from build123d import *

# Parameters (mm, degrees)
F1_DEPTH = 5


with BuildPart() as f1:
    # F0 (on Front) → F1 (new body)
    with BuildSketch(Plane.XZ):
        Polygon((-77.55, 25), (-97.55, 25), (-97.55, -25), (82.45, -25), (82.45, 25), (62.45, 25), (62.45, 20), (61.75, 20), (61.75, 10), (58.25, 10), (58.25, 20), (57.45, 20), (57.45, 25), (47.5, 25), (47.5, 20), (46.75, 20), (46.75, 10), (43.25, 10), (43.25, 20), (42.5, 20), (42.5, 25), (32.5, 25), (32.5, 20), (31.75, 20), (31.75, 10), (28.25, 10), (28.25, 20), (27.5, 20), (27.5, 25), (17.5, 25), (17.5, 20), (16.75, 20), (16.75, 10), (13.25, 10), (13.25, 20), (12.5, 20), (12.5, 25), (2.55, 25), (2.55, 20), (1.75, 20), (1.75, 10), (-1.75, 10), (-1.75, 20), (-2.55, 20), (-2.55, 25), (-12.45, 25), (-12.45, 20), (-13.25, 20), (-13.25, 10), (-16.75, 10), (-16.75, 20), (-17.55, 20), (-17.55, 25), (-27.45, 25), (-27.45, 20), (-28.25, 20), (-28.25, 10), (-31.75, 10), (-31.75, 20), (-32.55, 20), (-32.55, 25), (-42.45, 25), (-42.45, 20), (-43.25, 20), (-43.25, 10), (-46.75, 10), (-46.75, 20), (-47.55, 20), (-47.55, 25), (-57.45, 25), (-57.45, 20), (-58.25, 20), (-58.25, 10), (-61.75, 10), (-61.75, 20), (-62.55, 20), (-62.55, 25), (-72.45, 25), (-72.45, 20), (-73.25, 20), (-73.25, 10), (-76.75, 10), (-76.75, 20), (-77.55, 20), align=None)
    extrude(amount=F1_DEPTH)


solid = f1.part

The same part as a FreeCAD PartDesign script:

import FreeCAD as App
import Part
import Sketcher

V = App.Vector

doc = App.newDocument("Part")
body = doc.addObject("PartDesign::Body", "Body")

sketch1 = body.newObject("Sketcher::SketchObject", "Sketch")
sketch1.AttachmentSupport = (doc.getObject("XZ_Plane"), [""])
sketch1.MapMode = "FlatFace"
sketch1.addGeometry([
    Part.LineSegment(V(-77.5, 25, 0), V(-97.5, 25, 0)),
    Part.LineSegment(V(-97.5, 25, 0), V(-97.5, -25, 0)),
    Part.LineSegment(V(-97.5, -25, 0), V(82.5, -25, 0)),
    Part.LineSegment(V(82.5, -25, 0), V(82.5, 25, 0)),
    Part.LineSegment(V(82.5, 25, 0), V(62.5, 25, 0)),
    Part.LineSegment(V(62.5, 25, 0), V(62.5, 20, 0)),
    Part.LineSegment(V(62.5, 20, 0), V(61.8, 20, 0)),
    Part.LineSegment(V(61.8, 20, 0), V(61.8, 10, 0)),
    Part.LineSegment(V(61.8, 10, 0), V(58.2, 10, 0)),
    Part.LineSegment(V(58.2, 10, 0), V(58.2, 20, 0)),
    Part.LineSegment(V(58.2, 20, 0), V(57.5, 20, 0)),
    Part.LineSegment(V(57.5, 20, 0), V(57.5, 25, 0)),
    Part.LineSegment(V(57.5, 25, 0), V(47.5, 25, 0)),
    Part.LineSegment(V(47.5, 25, 0), V(47.5, 20, 0)),
    Part.LineSegment(V(47.5, 20, 0), V(46.8, 20, 0)),
    Part.LineSegment(V(46.8, 20, 0), V(46.8, 10, 0)),
    Part.LineSegment(V(46.8, 10, 0), V(43.2, 10, 0)),
    Part.LineSegment(V(43.2, 10, 0), V(43.2, 20, 0)),
    Part.LineSegment(V(43.2, 20, 0), V(42.5, 20, 0)),
    Part.LineSegment(V(42.5, 20, 0), V(42.5, 25, 0)),
    Part.LineSegment(V(42.5, 25, 0), V(32.5, 25, 0)),
    Part.LineSegment(V(32.5, 25, 0), V(32.5, 20, 0)),
    Part.LineSegment(V(32.5, 20, 0), V(31.8, 20, 0)),
    Part.LineSegment(V(31.8, 20, 0), V(31.8, 10, 0)),
    Part.LineSegment(V(31.8, 10, 0), V(28.2, 10, 0)),
    Part.LineSegment(V(28.2, 10, 0), V(28.2, 20, 0)),
    Part.LineSegment(V(28.2, 20, 0), V(27.5, 20, 0)),
    Part.LineSegment(V(27.5, 20, 0), V(27.5, 25, 0)),
    Part.LineSegment(V(27.5, 25, 0), V(17.5, 25, 0)),
    Part.LineSegment(V(17.5, 25, 0), V(17.5, 20, 0)),
    Part.LineSegment(V(17.5, 20, 0), V(16.8, 20, 0)),
    Part.LineSegment(V(16.8, 20, 0), V(16.8, 10, 0)),
    Part.LineSegment(V(16.8, 10, 0), V(13.2, 10, 0)),
    Part.LineSegment(V(13.2, 10, 0), V(13.2, 20, 0)),
    Part.LineSegment(V(13.2, 20, 0), V(12.5, 20, 0)),
    Part.LineSegment(V(12.5, 20, 0), V(12.5, 25, 0)),
    Part.LineSegment(V(12.5, 25, 0), V(2.5, 25, 0)),
    Part.LineSegment(V(2.5, 25, 0), V(2.5, 20, 0)),
    Part.LineSegment(V(2.5, 20, 0), V(1.8, 20, 0)),
    Part.LineSegment(V(1.8, 20, 0), V(1.8, 10, 0)),
    Part.LineSegment(V(1.8, 10, 0), V(-1.8, 10, 0)),
    Part.LineSegment(V(-1.8, 10, 0), V(-1.8, 20, 0)),
    Part.LineSegment(V(-1.8, 20, 0), V(-2.5, 20, 0)),
    Part.LineSegment(V(-2.5, 20, 0), V(-2.5, 25, 0)),
    Part.LineSegment(V(-2.5, 25, 0), V(-12.4, 25, 0)),
    Part.LineSegment(V(-12.4, 25, 0), V(-12.4, 20, 0)),
    Part.LineSegment(V(-12.4, 20, 0), V(-13.2, 20, 0)),
    Part.LineSegment(V(-13.2, 20, 0), V(-13.2, 10, 0)),
    Part.LineSegment(V(-13.2, 10, 0), V(-16.8, 10, 0)),
    Part.LineSegment(V(-16.8, 10, 0), V(-16.8, 20, 0)),
    Part.LineSegment(V(-16.8, 20, 0), V(-17.6, 20, 0)),
    Part.LineSegment(V(-17.6, 20, 0), V(-17.6, 25, 0)),
    Part.LineSegment(V(-17.6, 25, 0), V(-27.4, 25, 0)),
    Part.LineSegment(V(-27.4, 25, 0), V(-27.4, 20, 0)),
    Part.LineSegment(V(-27.4, 20, 0), V(-28.2, 20, 0)),
    Part.LineSegment(V(-28.2, 20, 0), V(-28.2, 10, 0)),
    Part.LineSegment(V(-28.2, 10, 0), V(-31.8, 10, 0)),
    Part.LineSegment(V(-31.8, 10, 0), V(-31.8, 20, 0)),
    Part.LineSegment(V(-31.8, 20, 0), V(-32.5, 20, 0)),
    Part.LineSegment(V(-32.5, 20, 0), V(-32.5, 25, 0)),
    Part.LineSegment(V(-32.5, 25, 0), V(-42.5, 25, 0)),
    Part.LineSegment(V(-42.5, 25, 0), V(-42.5, 20, 0)),
    Part.LineSegment(V(-42.5, 20, 0), V(-43.2, 20, 0)),
    Part.LineSegment(V(-43.2, 20, 0), V(-43.2, 10, 0)),
    Part.LineSegment(V(-43.2, 10, 0), V(-46.8, 10, 0)),
    Part.LineSegment(V(-46.8, 10, 0), V(-46.8, 20, 0)),
    Part.LineSegment(V(-46.8, 20, 0), V(-47.5, 20, 0)),
    Part.LineSegment(V(-47.5, 20, 0), V(-47.5, 25, 0)),
    Part.LineSegment(V(-47.5, 25, 0), V(-57.5, 25, 0)),
    Part.LineSegment(V(-57.5, 25, 0), V(-57.5, 20, 0)),
    Part.LineSegment(V(-57.5, 20, 0), V(-58.2, 20, 0)),
    Part.LineSegment(V(-58.2, 20, 0), V(-58.2, 10, 0)),
    Part.LineSegment(V(-58.2, 10, 0), V(-61.8, 10, 0)),
    Part.LineSegment(V(-61.8, 10, 0), V(-61.8, 20, 0)),
    Part.LineSegment(V(-61.8, 20, 0), V(-62.5, 20, 0)),
    Part.LineSegment(V(-62.5, 20, 0), V(-62.5, 25, 0)),
    Part.LineSegment(V(-62.5, 25, 0), V(-72.5, 25, 0)),
    Part.LineSegment(V(-72.5, 25, 0), V(-72.5, 20, 0)),
    Part.LineSegment(V(-72.5, 20, 0), V(-73.2, 20, 0)),
    Part.LineSegment(V(-73.2, 20, 0), V(-73.2, 10, 0)),
    Part.LineSegment(V(-73.2, 10, 0), V(-76.8, 10, 0)),
    Part.LineSegment(V(-76.8, 10, 0), V(-76.8, 20, 0)),
    Part.LineSegment(V(-76.8, 20, 0), V(-77.5, 20, 0)),
    Part.LineSegment(V(-77.5, 20, 0), V(-77.5, 25, 0)),
], False)
sketch1.addConstraint([
    Sketcher.Constraint("Coincident", 0, 2, 1, 1),
    Sketcher.Constraint("Coincident", 1, 2, 2, 1),
    Sketcher.Constraint("Coincident", 2, 2, 3, 1),
    Sketcher.Constraint("Coincident", 3, 2, 4, 1),
    Sketcher.Constraint("Coincident", 4, 2, 5, 1),
    Sketcher.Constraint("Coincident", 5, 2, 6, 1),
    Sketcher.Constraint("Coincident", 6, 2, 7, 1),
    Sketcher.Constraint("Coincident", 7, 2, 8, 1),
    Sketcher.Constraint("Coincident", 8, 2, 9, 1),
    Sketcher.Constraint("Coincident", 9, 2, 10, 1),
    Sketcher.Constraint("Coincident", 10, 2, 11, 1),
    Sketcher.Constraint("Coincident", 11, 2, 12, 1),
    Sketcher.Constraint("Coincident", 12, 2, 13, 1),
    Sketcher.Constraint("Coincident", 13, 2, 14, 1),
    Sketcher.Constraint("Coincident", 14, 2, 15, 1),
    Sketcher.Constraint("Coincident", 15, 2, 16, 1),
    Sketcher.Constraint("Coincident", 16, 2, 17, 1),
    Sketcher.Constraint("Coincident", 17, 2, 18, 1),
    Sketcher.Constraint("Coincident", 18, 2, 19, 1),
    Sketcher.Constraint("Coincident", 19, 2, 20, 1),
    Sketcher.Constraint("Coincident", 20, 2, 21, 1),
    Sketcher.Constraint("Coincident", 21, 2, 22, 1),
    Sketcher.Constraint("Coincident", 22, 2, 23, 1),
    Sketcher.Constraint("Coincident", 23, 2, 24, 1),
    Sketcher.Constraint("Coincident", 24, 2, 25, 1),
    Sketcher.Constraint("Coincident", 25, 2, 26, 1),
    Sketcher.Constraint("Coincident", 26, 2, 27, 1),
    Sketcher.Constraint("Coincident", 27, 2, 28, 1),
    Sketcher.Constraint("Coincident", 28, 2, 29, 1),
    Sketcher.Constraint("Coincident", 29, 2, 30, 1),
    Sketcher.Constraint("Coincident", 30, 2, 31, 1),
    Sketcher.Constraint("Coincident", 31, 2, 32, 1),
    Sketcher.Constraint("Coincident", 32, 2, 33, 1),
    Sketcher.Constraint("Coincident", 33, 2, 34, 1),
    Sketcher.Constraint("Coincident", 34, 2, 35, 1),
    Sketcher.Constraint("Coincident", 35, 2, 36, 1),
    Sketcher.Constraint("Coincident", 36, 2, 37, 1),
    Sketcher.Constraint("Coincident", 37, 2, 38, 1),
    Sketcher.Constraint("Coincident", 38, 2, 39, 1),
    Sketcher.Constraint("Coincident", 39, 2, 40, 1),
    Sketcher.Constraint("Coincident", 40, 2, 41, 1),
    Sketcher.Constraint("Coincident", 41, 2, 42, 1),
    Sketcher.Constraint("Coincident", 42, 2, 43, 1),
    Sketcher.Constraint("Coincident", 43, 2, 44, 1),
    Sketcher.Constraint("Coincident", 44, 2, 45, 1),
    Sketcher.Constraint("Coincident", 45, 2, 46, 1),
    Sketcher.Constraint("Coincident", 46, 2, 47, 1),
    Sketcher.Constraint("Coincident", 47, 2, 48, 1),
    Sketcher.Constraint("Coincident", 48, 2, 49, 1),
    Sketcher.Constraint("Coincident", 49, 2, 50, 1),
    Sketcher.Constraint("Coincident", 50, 2, 51, 1),
    Sketcher.Constraint("Coincident", 51, 2, 52, 1),
    Sketcher.Constraint("Coincident", 52, 2, 53, 1),
    Sketcher.Constraint("Coincident", 53, 2, 54, 1),
    Sketcher.Constraint("Coincident", 54, 2, 55, 1),
    Sketcher.Constraint("Coincident", 55, 2, 56, 1),
    Sketcher.Constraint("Coincident", 56, 2, 57, 1),
    Sketcher.Constraint("Coincident", 57, 2, 58, 1),
    Sketcher.Constraint("Coincident", 58, 2, 59, 1),
    Sketcher.Constraint("Coincident", 59, 2, 60, 1),
    Sketcher.Constraint("Coincident", 60, 2, 61, 1),
    Sketcher.Constraint("Coincident", 61, 2, 62, 1),
    Sketcher.Constraint("Coincident", 62, 2, 63, 1),
    Sketcher.Constraint("Coincident", 63, 2, 64, 1),
    Sketcher.Constraint("Coincident", 64, 2, 65, 1),
    Sketcher.Constraint("Coincident", 65, 2, 66, 1),
    Sketcher.Constraint("Coincident", 66, 2, 67, 1),
    Sketcher.Constraint("Coincident", 67, 2, 68, 1),
    Sketcher.Constraint("Coincident", 68, 2, 69, 1),
    Sketcher.Constraint("Coincident", 69, 2, 70, 1),
    Sketcher.Constraint("Coincident", 70, 2, 71, 1),
    Sketcher.Constraint("Coincident", 71, 2, 72, 1),
    Sketcher.Constraint("Coincident", 72, 2, 73, 1),
    Sketcher.Constraint("Coincident", 73, 2, 74, 1),
    Sketcher.Constraint("Coincident", 74, 2, 75, 1),
    Sketcher.Constraint("Coincident", 75, 2, 76, 1),
    Sketcher.Constraint("Coincident", 76, 2, 77, 1),
    Sketcher.Constraint("Coincident", 77, 2, 78, 1),
    Sketcher.Constraint("Coincident", 78, 2, 79, 1),
    Sketcher.Constraint("Coincident", 79, 2, 80, 1),
    Sketcher.Constraint("Coincident", 80, 2, 81, 1),
    Sketcher.Constraint("Coincident", 81, 2, 82, 1),
    Sketcher.Constraint("Coincident", 82, 2, 83, 1),
    Sketcher.Constraint("Coincident", 83, 2, 0, 1),
    Sketcher.Constraint("Horizontal", 0),
    Sketcher.Constraint("Vertical", 1),
    Sketcher.Constraint("Horizontal", 2),
    Sketcher.Constraint("Vertical", 3),
    Sketcher.Constraint("Horizontal", 4),
    Sketcher.Constraint("Vertical", 5),
    Sketcher.Constraint("Horizontal", 6),
    Sketcher.Constraint("Vertical", 7),
    Sketcher.Constraint("Horizontal", 8),
    Sketcher.Constraint("Vertical", 9),
    Sketcher.Constraint("Horizontal", 10),
    Sketcher.Constraint("Vertical", 11),
    Sketcher.Constraint("Horizontal", 12),
    Sketcher.Constraint("Vertical", 13),
    Sketcher.Constraint("Horizontal", 14),
    Sketcher.Constraint("Vertical", 15),
    Sketcher.Constraint("Horizontal", 16),
    Sketcher.Constraint("Vertical", 17),
    Sketcher.Constraint("Horizontal", 18),
    Sketcher.Constraint("Vertical", 19),
    Sketcher.Constraint("Horizontal", 20),
    Sketcher.Constraint("Vertical", 21),
    Sketcher.Constraint("Horizontal", 22),
    Sketcher.Constraint("Vertical", 23),
    Sketcher.Constraint("Horizontal", 24),
    Sketcher.Constraint("Vertical", 25),
    Sketcher.Constraint("Horizontal", 26),
    Sketcher.Constraint("Vertical", 27),
    Sketcher.Constraint("Horizontal", 28),
    Sketcher.Constraint("Vertical", 29),
    Sketcher.Constraint("Horizontal", 30),
    Sketcher.Constraint("Vertical", 31),
    Sketcher.Constraint("Horizontal", 32),
    Sketcher.Constraint("Vertical", 33),
    Sketcher.Constraint("Horizontal", 34),
    Sketcher.Constraint("Vertical", 35),
    Sketcher.Constraint("Horizontal", 36),
    Sketcher.Constraint("Vertical", 37),
    Sketcher.Constraint("Horizontal", 38),
    Sketcher.Constraint("Vertical", 39),
    Sketcher.Constraint("Horizontal", 40),
    Sketcher.Constraint("Vertical", 41),
    Sketcher.Constraint("Horizontal", 42),
    Sketcher.Constraint("Vertical", 43),
    Sketcher.Constraint("Horizontal", 44),
    Sketcher.Constraint("Vertical", 45),
    Sketcher.Constraint("Horizontal", 46),
    Sketcher.Constraint("Vertical", 47),
    Sketcher.Constraint("Horizontal", 48),
    Sketcher.Constraint("Vertical", 49),
    Sketcher.Constraint("Horizontal", 50),
    Sketcher.Constraint("Vertical", 51),
    Sketcher.Constraint("Horizontal", 52),
    Sketcher.Constraint("Vertical", 53),
    Sketcher.Constraint("Horizontal", 54),
    Sketcher.Constraint("Vertical", 55),
    Sketcher.Constraint("Horizontal", 56),
    Sketcher.Constraint("Vertical", 57),
    Sketcher.Constraint("Horizontal", 58),
    Sketcher.Constraint("Vertical", 59),
    Sketcher.Constraint("Horizontal", 60),
    Sketcher.Constraint("Vertical", 61),
    Sketcher.Constraint("Horizontal", 62),
    Sketcher.Constraint("Vertical", 63),
    Sketcher.Constraint("Horizontal", 64),
    Sketcher.Constraint("Vertical", 65),
    Sketcher.Constraint("Horizontal", 66),
    Sketcher.Constraint("Vertical", 67),
    Sketcher.Constraint("Horizontal", 68),
    Sketcher.Constraint("Vertical", 69),
    Sketcher.Constraint("Horizontal", 70),
    Sketcher.Constraint("Vertical", 71),
    Sketcher.Constraint("Horizontal", 72),
    Sketcher.Constraint("Vertical", 73),
    Sketcher.Constraint("Horizontal", 74),
    Sketcher.Constraint("Vertical", 75),
    Sketcher.Constraint("Horizontal", 76),
    Sketcher.Constraint("Vertical", 77),
    Sketcher.Constraint("Horizontal", 78),
    Sketcher.Constraint("Vertical", 79),
    Sketcher.Constraint("Horizontal", 80),
    Sketcher.Constraint("Vertical", 81),
    Sketcher.Constraint("Horizontal", 82),
    Sketcher.Constraint("Vertical", 83),
    Sketcher.Constraint("Symmetric", 38, 2, 41, 2, -2),
    Sketcher.Constraint("Symmetric", 36, 2, 43, 2, -2),
    Sketcher.Constraint("Symmetric", 33, 2, 46, 2, -2),
    Sketcher.Constraint("Symmetric", 31, 2, 48, 2, -2),
    Sketcher.Constraint("Symmetric", 25, 2, 54, 2, -2),
    Sketcher.Constraint("Symmetric", 23, 2, 56, 2, -2),
    Sketcher.Constraint("Symmetric", 17, 2, 62, 2, -2),
    Sketcher.Constraint("Symmetric", 15, 2, 64, 2, -2),
    Sketcher.Constraint("Symmetric", 11, 2, 68, 2, -2),
    Sketcher.Constraint("Symmetric", 9, 2, 70, 2, -2),
    Sketcher.Constraint("Symmetric", 7, 2, 72, 2, -2),
    Sketcher.Constraint("Horizontal", 0, 2, 3, 2),
    Sketcher.Constraint("Horizontal", 6, 2, 9, 2),
    Sketcher.Constraint("Horizontal", 4, 2, 11, 2),
    Sketcher.Constraint("Horizontal", 10, 2, 13, 2),
    Sketcher.Constraint("Horizontal", 8, 2, 15, 2),
    Sketcher.Constraint("Horizontal", 14, 2, 17, 2),
    Sketcher.Constraint("Horizontal", 12, 2, 19, 2),
    Sketcher.Constraint("Horizontal", 18, 2, 21, 2),
    Sketcher.Constraint("Horizontal", 16, 2, 23, 2),
    Sketcher.Constraint("Horizontal", 22, 2, 25, 2),
    Sketcher.Constraint("Horizontal", 20, 2, 27, 2),
    Sketcher.Constraint("Horizontal", 26, 2, 29, 2),
    Sketcher.Constraint("Horizontal", 24, 2, 31, 2),
    Sketcher.Constraint("Horizontal", 30, 2, 33, 2),
    Sketcher.Constraint("Horizontal", 28, 2, 35, 2),
    Sketcher.Constraint("Horizontal", 34, 2, 37, 2),
    Sketcher.Constraint("Horizontal", 32, 2, 39, 2),
    Sketcher.Constraint("Horizontal", 46, 2, 49, 2),
    Sketcher.Constraint("Horizontal", 44, 2, 51, 2),
    Sketcher.Constraint("Horizontal", 54, 2, 57, 2),
    Sketcher.Constraint("Horizontal", 52, 2, 59, 2),
    Sketcher.Constraint("Horizontal", 62, 2, 65, 2),
    Sketcher.Constraint("Horizontal", 70, 2, 73, 2),
    Sketcher.Constraint("Horizontal", 68, 2, 75, 2),
    Sketcher.Constraint("Horizontal", 74, 2, 77, 2),
    Sketcher.Constraint("Horizontal", 72, 2, 79, 2),
    Sketcher.Constraint("Horizontal", 78, 2, 81, 2),
    Sketcher.Constraint("Equal", 0, 4),
    Sketcher.Constraint("Equal", 8, 16),
    Sketcher.Constraint("Equal", 14, 18),
    Sketcher.Constraint("Equal", 18, 22),
    Sketcher.Constraint("Equal", 16, 24),
    Sketcher.Constraint("Equal", 22, 26),
    Sketcher.Constraint("Equal", 20, 28),
    Sketcher.Constraint("Equal", 26, 30),
    Sketcher.Constraint("Equal", 24, 32),
    Sketcher.Constraint("Equal", 30, 34),
    Sketcher.Constraint("Equal", 12, 36),
    Sketcher.Constraint("Equal", 10, 38),
    Sketcher.Constraint("Equal", 32, 40),
    Sketcher.Constraint("Equal", 42, 46),
    Sketcher.Constraint("Equal", 46, 50),
    Sketcher.Constraint("Equal", 44, 52),
    Sketcher.Constraint("Equal", 50, 54),
    Sketcher.Constraint("Equal", 54, 58),
    Sketcher.Constraint("Equal", 52, 60),
    Sketcher.Constraint("Equal", 62, 66),
    Sketcher.Constraint("Equal", 70, 74),
    Sketcher.Constraint("Equal", 68, 76),
    Sketcher.Constraint("Equal", 74, 78),
    Sketcher.Constraint("Equal", 72, 80),
    Sketcher.Constraint("Equal", 78, 82),
    Sketcher.Constraint("Equal", 28, 7),
    Sketcher.Constraint("DistanceX", 0, 2, 0, 1, 20.0),
    Sketcher.Constraint("DistanceX", 2, 1, 2, 2, 180.0),
    Sketcher.Constraint("DistanceX", 20, 2, 20, 1, 10.0),
    Sketcher.Constraint("DistanceY", 1, 2, 1, 1, 50.0),
    Sketcher.Constraint("DistanceY", 5, 2, 5, 1, 5.0),
    Sketcher.Constraint("DistanceX", 6, 2, 6, 1, 0.7),
    Sketcher.Constraint("DistanceX", 8, 2, 8, 1, 3.5),
    Sketcher.Constraint("DistanceX", 10, 2, 10, 1, 0.8),
    Sketcher.Constraint("DistanceY", -1, 1, 0, 2, 25.0),
])
pad1 = body.newObject("PartDesign::Pad", "Pad")
pad1.Profile = sketch1
pad1.Length = 5

doc.recompute()
